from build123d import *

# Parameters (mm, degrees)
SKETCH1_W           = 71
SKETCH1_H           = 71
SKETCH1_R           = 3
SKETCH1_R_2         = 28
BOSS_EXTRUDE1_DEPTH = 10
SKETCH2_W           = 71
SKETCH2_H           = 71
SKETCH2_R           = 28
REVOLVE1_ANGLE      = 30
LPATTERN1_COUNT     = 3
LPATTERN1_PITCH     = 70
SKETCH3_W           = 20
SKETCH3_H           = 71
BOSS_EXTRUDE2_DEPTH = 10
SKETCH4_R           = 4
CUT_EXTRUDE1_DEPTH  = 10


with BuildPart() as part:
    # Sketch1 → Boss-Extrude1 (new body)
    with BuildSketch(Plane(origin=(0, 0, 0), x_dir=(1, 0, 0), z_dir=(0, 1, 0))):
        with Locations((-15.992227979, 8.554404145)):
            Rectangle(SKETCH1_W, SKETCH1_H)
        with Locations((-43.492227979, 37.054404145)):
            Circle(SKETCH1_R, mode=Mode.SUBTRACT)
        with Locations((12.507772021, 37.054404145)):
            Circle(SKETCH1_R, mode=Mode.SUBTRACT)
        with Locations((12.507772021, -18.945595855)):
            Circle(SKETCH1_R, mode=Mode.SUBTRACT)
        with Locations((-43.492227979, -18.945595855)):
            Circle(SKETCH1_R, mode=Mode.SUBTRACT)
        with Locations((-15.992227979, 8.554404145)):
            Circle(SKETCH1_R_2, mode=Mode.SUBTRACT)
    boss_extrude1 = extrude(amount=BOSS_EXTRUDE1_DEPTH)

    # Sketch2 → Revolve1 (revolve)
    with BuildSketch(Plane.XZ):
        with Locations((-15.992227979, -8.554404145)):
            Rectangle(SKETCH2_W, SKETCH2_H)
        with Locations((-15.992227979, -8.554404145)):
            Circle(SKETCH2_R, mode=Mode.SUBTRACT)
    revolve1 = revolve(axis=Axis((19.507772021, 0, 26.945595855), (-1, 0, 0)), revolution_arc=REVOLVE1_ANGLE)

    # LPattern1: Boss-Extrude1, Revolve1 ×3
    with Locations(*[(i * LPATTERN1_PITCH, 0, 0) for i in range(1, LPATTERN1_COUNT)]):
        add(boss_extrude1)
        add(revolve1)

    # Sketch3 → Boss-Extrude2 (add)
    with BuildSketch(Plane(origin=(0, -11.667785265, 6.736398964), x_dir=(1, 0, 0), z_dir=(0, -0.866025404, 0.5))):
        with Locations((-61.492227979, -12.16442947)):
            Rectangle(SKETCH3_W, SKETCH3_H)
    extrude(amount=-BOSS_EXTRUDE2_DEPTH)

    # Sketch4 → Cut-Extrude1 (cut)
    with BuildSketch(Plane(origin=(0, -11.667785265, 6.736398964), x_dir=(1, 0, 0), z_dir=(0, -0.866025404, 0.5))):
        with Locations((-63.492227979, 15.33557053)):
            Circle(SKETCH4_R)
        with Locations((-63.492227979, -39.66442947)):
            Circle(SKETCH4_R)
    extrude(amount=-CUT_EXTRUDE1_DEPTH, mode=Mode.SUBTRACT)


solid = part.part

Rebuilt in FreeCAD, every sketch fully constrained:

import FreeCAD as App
import Part
import Sketcher

V = App.Vector
Q = App.Units.Quantity

doc = App.newDocument("Part")
body = doc.addObject("PartDesign::Body", "Body")

# Sketch on XZ plane
sketch1 = body.newObject("Sketcher::SketchObject", "Sketch")
sketch1.AttachmentSupport = (doc.getObject("XZ_Plane"), [""])
sketch1.MapMode = "FlatFace"
sketch1.addGeometry([
    Part.LineSegment(V(-51.492228, -44.054404, 0), V(-51.492228, 26.945596, 0)),  # 0
    Part.LineSegment(V(-51.492228, 26.945596, 0), V(19.507772, 26.945596, 0)),  # 1
    Part.LineSegment(V(19.507772, 26.945596, 0), V(19.507772, -44.054404, 0)),  # 2
    Part.LineSegment(V(19.507772, -44.054404, 0), V(-51.492228, -44.054404, 0)),  # 3
    Part.Circle(V(-43.492228, 18.945596, 0), V(0, 0, 1), 3),  # 4
    Part.Circle(V(-15.992228, -8.554404, 0), V(0, 0, 1), 28),  # 5
    Part.Circle(V(12.507772, 18.945596, 0), V(0, 0, 1), 3),  # 6
    Part.Circle(V(-43.492228, -37.054404, 0), V(0, 0, 1), 3),  # 7
    Part.Circle(V(12.507772, -37.054404, 0), V(0, 0, 1), 3),  # 8
], False)
sketch1.addConstraint([
    Sketcher.Constraint("Coincident", 0, 2, 1, 1),
    Sketcher.Constraint("Coincident", 1, 2, 2, 1),
    Sketcher.Constraint("Coincident", 2, 2, 3, 1),
    Sketcher.Constraint("Coincident", 3, 2, 0, 1),
    Sketcher.Constraint("Vertical", 0),
    Sketcher.Constraint("Horizontal", 1),
    Sketcher.Constraint("Vertical", 2),
    Sketcher.Constraint("Horizontal", 3),
    Sketcher.Constraint("Equal", 4, 6),
    Sketcher.Constraint("Equal", 6, 7),
    Sketcher.Constraint("Equal", 7, 8),
    Sketcher.Constraint("Horizontal", 4, 3, 6, 3),
    Sketcher.Constraint("Horizontal", 7, 3, 8, 3),
    Sketcher.Constraint("Vertical", 4, 3, 7, 3),
    Sketcher.Constraint("Vertical", 6, 3, 8, 3),
    Sketcher.Constraint("Equal", 3, 0),
    Sketcher.Constraint("Diameter", 4, Q("6 mm")),
    Sketcher.Constraint("Diameter", 5, Q("56 mm")),
    Sketcher.Constraint("DistanceX", 1, 1, 1, 2, Q("71 mm")),
    Sketcher.Constraint("DistanceX", 4, 3, 6, 3, Q("56 mm")),
    Sketcher.Constraint("DistanceY", 7, 3, 4, 3, Q("56 mm")),
    Sketcher.Constraint("DistanceX", 0, 2, 4, 3, Q("8 mm")),
    Sketcher.Constraint("DistanceY", 4, 3, 0, 2, Q("8 mm")),
    Sketcher.Constraint("DistanceX", 4, 3, 5, 3, Q("27.5 mm")),
    Sketcher.Constraint("DistanceY", 5, 3, 4, 3, Q("27.5 mm")),
    Sketcher.Constraint("DistanceX", 4, 3, -1, 1, Q("43.492228 mm")),
    Sketcher.Constraint("DistanceY", -1, 1, 4, 3, Q("18.945596 mm")),
])
pad1 = body.newObject("PartDesign::Pad", "Pad")
pad1.Profile = sketch1
pad1.Length = 10
pad1.Reversed = True

# Sketch on XZ plane
sketch2 = body.newObject("Sketcher::SketchObject", "Sketch001")
sketch2.AttachmentSupport = (doc.getObject("XZ_Plane"), [""])
sketch2.MapMode = "FlatFace"
sketch2.addGeometry([
    Part.LineSegment(V(-51.492228, 26.945596, 0), V(-51.492228, -44.054404, 0)),  # 0
    Part.LineSegment(V(-51.492228, -44.054404, 0), V(19.507772, -44.054404, 0)),  # 1
    Part.LineSegment(V(19.507772, -44.054404, 0), V(19.507772, 26.945596, 0)),  # 2
    Part.LineSegment(V(19.507772, 26.945596, 0), V(-51.492228, 26.945596, 0)),  # 3
    Part.Circle(V(-15.992228, -8.554404, 0), V(0, 0, 1), 28),  # 4
], False)
sketch2.addGeometry(Part.LineSegment(V(19.507772, 26.945596, 0), V(-51.492228, 26.945596, 0)), True)  # axis
sketch2.addConstraint([
    Sketcher.Constraint("Coincident", 0, 2, 1, 1),
    Sketcher.Constraint("Coincident", 1, 2, 2, 1),
    Sketcher.Constraint("Coincident", 2, 2, 3, 1),
    Sketcher.Constraint("Coincident", 3, 2, 0, 1),
    Sketcher.Constraint("Vertical", 0),
    Sketcher.Constraint("Horizontal", 1),
    Sketcher.Constraint("Vertical", 2),
    Sketcher.Constraint("Horizontal", 3),
    Sketcher.Constraint("Horizontal", 5),
    Sketcher.Constraint("Coincident", 5, 1, 2, 2),
    Sketcher.Constraint("Vertical", 0, 2, 5, 2),
    Sketcher.Constraint("Equal", 5, 0),
    Sketcher.Constraint("Diameter", 4, Q("56 mm")),
    Sketcher.Constraint("DistanceX", 1, 1, 1, 2, Q("71 mm")),
    Sketcher.Constraint("DistanceX", 0, 2, 4, 3, Q("35.5 mm")),
    Sketcher.Constraint("DistanceY", 0, 2, 4, 3, Q("35.5 mm")),
    Sketcher.Constraint("DistanceX", 4, 3, -1, 1, Q("15.992228 mm")),
    Sketcher.Constraint("DistanceY", 4, 3, -1, 1, Q("8.554404 mm")),
])
revolution = body.newObject("PartDesign::Revolution", "Revolution")
revolution.Profile = sketch2
revolution.ReferenceAxis = (sketch2, ["Axis0"])
revolution.Angle = 30
doc.recompute()

linearpattern = body.newObject("PartDesign::LinearPattern", "LinearPattern")
linearpattern.Originals = [pad1, revolution]
linearpattern.Direction = (doc.getObject("X_Axis"), [""])
linearpattern.Mode = "offset"
linearpattern.Offset = 70
linearpattern.Occurrences = 3
body.Tip = linearpattern

# Sketch on an angled plane
sketch3 = body.newObject("Sketcher::SketchObject", "Sketch002")
sketch3.Placement = App.Placement(V(0, -11.667785, 6.736399), App.Rotation(V(1, 0, 0), V(0, 0.5, 0.866025404), V(0, -0.866025404, 0.5), "ZXY"))
sketch3.addGeometry([
    Part.LineSegment(V(-71.492228, 23.335571, 0), V(-71.492228, -47.664429, 0)),
    Part.LineSegment(V(-71.492228, -47.664429, 0), V(-51.492228, -47.664429, 0)),
    Part.LineSegment(V(-51.492228, -47.664429, 0), V(-51.492228, 23.335571, 0)),
    Part.LineSegment(V(-51.492228, 23.335571, 0), V(-71.492228, 23.335571, 0)),
], False)
sketch3.addConstraint([
    Sketcher.Constraint("Coincident", 0, 2, 1, 1),
    Sketcher.Constraint("Coincident", 1, 2, 2, 1),
    Sketcher.Constraint("Coincident", 2, 2, 3, 1),
    Sketcher.Constraint("Coincident", 3, 2, 0, 1),
    Sketcher.Constraint("Vertical", 0),
    Sketcher.Constraint("Horizontal", 1),
    Sketcher.Constraint("Vertical", 2),
    Sketcher.Constraint("Horizontal", 3),
    Sketcher.Constraint("DistanceX", 1, 1, 1, 2, Q("20 mm")),
    Sketcher.Constraint("DistanceY", 0, 2, 0, 1, Q("71 mm")),
    Sketcher.Constraint("DistanceY", 0, 2, -1, 1, Q("47.664429 mm")),
    Sketcher.Constraint("DistanceX", 0, 2, -1, 1, Q("71.492228 mm")),
])
pad2 = body.newObject("PartDesign::Pad", "Pad001")
pad2.Profile = sketch3
pad2.Length = 10
pad2.Reversed = True

# Sketch on an angled plane
sketch4 = body.newObject("Sketcher::SketchObject", "Sketch003")
sketch4.Placement = App.Placement(V(0, -11.667785, 6.736399), App.Rotation(V(1, 0, 0), V(0, 0.5, 0.866025404), V(0, -0.866025404, 0.5), "ZXY"))
sketch4.addGeometry([
    Part.Circle(V(-63.492228, 15.335571, 0), V(0, 0, 1), 4),
    Part.Circle(V(-63.492228, -39.664429, 0), V(0, 0, 1), 4),
], False)
sketch4.addConstraint([
    Sketcher.Constraint("Equal", 0, 1),
    Sketcher.Constraint("Vertical", 0, 3, 1, 3),
    Sketcher.Constraint("Diameter", 0, Q("8 mm")),
    Sketcher.Constraint("DistanceY", 1, 3, 0, 3, Q("55 mm")),
    Sketcher.Constraint("DistanceY", -1, 1, 0, 3, Q("15.335571 mm")),
    Sketcher.Constraint("DistanceX", 0, 3, -1, 1, Q("63.492228 mm")),
])
pocket1 = body.newObject("PartDesign::Pocket", "Pocket")
pocket1.Profile = sketch4
pocket1.Length = 10

doc.recompute()
